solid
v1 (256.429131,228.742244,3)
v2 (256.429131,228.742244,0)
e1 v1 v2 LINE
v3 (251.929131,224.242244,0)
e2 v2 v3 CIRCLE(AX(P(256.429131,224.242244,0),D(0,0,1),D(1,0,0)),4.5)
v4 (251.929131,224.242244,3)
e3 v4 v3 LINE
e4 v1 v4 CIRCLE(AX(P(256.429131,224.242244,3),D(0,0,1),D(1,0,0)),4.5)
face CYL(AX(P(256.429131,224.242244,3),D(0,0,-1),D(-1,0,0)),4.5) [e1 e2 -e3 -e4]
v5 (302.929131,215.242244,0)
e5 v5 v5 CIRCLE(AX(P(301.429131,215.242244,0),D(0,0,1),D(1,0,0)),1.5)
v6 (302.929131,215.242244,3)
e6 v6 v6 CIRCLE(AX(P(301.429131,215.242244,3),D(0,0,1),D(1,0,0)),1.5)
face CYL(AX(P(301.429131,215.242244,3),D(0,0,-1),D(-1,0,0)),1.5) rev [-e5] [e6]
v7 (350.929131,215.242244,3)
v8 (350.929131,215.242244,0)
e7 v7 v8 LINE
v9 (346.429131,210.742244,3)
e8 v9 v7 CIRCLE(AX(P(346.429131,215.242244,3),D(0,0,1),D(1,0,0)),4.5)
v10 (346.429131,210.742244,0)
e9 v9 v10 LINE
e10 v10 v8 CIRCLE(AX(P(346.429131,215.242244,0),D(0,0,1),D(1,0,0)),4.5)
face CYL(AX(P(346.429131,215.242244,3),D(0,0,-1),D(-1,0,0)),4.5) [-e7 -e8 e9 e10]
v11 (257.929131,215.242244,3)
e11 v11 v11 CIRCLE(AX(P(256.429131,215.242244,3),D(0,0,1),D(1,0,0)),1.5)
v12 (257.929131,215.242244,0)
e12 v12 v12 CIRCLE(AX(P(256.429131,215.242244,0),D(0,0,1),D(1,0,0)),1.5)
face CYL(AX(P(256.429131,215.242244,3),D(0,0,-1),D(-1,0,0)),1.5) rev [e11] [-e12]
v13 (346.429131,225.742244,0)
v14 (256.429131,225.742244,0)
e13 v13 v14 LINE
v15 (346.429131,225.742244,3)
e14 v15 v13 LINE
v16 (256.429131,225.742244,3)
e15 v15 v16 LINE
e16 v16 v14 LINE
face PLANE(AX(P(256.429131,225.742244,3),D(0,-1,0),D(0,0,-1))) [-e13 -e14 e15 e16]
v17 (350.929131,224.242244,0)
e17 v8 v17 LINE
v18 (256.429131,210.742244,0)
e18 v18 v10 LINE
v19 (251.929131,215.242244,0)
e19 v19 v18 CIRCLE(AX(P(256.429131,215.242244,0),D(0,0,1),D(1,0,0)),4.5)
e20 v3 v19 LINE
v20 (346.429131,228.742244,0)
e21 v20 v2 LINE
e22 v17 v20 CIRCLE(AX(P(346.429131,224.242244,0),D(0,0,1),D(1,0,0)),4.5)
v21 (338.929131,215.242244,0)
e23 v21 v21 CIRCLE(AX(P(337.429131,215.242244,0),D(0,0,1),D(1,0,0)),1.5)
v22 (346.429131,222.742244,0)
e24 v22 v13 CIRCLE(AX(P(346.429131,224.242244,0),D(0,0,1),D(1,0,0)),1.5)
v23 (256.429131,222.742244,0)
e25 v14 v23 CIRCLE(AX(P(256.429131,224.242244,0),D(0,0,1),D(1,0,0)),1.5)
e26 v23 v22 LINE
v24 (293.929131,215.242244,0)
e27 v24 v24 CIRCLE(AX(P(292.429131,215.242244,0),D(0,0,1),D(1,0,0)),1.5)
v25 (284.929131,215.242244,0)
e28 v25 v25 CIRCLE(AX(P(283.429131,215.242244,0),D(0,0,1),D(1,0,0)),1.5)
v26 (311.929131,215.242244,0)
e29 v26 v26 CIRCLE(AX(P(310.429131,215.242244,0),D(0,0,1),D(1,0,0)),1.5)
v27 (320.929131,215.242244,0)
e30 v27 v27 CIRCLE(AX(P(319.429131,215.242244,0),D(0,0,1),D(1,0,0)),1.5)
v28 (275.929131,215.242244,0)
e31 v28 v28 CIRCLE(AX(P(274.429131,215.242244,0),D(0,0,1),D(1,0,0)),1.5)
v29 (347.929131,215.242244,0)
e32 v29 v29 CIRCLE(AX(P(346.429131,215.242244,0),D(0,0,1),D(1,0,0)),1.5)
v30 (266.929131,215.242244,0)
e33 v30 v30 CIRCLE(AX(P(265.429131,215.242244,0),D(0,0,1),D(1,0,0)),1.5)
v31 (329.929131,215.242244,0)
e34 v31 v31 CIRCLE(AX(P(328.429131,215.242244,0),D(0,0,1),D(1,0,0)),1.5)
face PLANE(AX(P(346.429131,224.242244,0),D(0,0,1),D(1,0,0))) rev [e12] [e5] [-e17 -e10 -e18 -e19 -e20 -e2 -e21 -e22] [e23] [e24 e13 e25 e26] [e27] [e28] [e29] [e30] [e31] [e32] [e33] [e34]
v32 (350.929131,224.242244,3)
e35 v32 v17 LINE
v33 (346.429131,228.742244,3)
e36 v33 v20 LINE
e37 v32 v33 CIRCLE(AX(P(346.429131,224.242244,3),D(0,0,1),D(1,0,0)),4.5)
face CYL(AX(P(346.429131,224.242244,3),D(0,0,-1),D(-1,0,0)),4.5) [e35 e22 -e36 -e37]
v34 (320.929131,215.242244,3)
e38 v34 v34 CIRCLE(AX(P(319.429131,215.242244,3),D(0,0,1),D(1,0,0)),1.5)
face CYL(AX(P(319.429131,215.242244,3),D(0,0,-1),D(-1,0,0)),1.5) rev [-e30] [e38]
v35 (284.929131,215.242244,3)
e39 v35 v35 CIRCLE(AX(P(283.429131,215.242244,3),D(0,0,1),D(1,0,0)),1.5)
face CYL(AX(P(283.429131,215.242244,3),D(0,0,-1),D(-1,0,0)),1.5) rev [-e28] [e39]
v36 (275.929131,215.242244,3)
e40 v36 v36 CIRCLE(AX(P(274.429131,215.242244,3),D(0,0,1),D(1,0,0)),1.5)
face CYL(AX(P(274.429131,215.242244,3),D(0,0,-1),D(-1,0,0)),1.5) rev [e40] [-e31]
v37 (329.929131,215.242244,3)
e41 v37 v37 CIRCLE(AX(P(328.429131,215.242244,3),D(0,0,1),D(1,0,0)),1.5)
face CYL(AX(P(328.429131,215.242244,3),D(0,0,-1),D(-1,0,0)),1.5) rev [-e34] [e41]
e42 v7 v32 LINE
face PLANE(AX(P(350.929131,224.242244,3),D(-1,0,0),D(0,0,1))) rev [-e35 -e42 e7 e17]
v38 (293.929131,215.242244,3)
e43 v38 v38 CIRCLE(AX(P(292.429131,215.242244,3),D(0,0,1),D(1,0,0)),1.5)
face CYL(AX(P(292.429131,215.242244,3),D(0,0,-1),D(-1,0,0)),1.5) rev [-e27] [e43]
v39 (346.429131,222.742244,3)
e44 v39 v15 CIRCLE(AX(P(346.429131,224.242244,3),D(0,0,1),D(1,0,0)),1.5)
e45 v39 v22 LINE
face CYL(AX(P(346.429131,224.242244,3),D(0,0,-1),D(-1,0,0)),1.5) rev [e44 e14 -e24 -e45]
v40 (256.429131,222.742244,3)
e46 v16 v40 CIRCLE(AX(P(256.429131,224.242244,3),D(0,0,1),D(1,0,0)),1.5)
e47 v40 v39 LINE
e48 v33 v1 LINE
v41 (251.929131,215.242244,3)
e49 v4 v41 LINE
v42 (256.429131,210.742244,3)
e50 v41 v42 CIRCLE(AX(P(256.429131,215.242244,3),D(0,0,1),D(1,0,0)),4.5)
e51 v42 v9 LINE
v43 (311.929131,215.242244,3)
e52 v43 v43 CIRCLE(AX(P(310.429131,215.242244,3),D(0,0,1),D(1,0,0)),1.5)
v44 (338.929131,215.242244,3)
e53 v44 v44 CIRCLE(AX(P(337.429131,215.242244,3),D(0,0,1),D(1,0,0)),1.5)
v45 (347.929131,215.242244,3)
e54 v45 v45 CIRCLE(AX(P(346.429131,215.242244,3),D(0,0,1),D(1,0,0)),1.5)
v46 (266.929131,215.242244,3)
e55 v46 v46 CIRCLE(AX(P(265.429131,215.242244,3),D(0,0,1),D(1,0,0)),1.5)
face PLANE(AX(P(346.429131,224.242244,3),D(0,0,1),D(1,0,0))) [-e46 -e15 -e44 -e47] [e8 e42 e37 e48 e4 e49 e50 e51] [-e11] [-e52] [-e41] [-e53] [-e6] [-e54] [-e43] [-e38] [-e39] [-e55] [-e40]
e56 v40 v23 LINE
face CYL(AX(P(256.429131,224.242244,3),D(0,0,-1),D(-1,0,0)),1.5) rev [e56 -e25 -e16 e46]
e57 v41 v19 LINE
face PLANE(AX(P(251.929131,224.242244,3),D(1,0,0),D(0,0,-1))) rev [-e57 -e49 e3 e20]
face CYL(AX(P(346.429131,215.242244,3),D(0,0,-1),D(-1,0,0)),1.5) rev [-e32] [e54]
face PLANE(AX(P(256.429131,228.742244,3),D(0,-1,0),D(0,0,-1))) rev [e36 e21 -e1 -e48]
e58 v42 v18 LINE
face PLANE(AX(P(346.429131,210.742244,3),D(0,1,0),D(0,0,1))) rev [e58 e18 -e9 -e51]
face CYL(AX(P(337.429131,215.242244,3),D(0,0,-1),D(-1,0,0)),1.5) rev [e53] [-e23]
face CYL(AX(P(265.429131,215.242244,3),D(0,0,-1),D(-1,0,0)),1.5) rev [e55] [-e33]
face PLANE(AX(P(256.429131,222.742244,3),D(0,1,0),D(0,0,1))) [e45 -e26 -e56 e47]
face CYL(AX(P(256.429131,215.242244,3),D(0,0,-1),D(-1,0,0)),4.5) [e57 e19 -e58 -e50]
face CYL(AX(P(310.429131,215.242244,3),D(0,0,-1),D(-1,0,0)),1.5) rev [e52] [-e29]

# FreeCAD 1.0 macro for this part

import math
import FreeCAD as App
import Part
import Sketcher

V = App.Vector
Q = App.Units.Quantity

doc = App.newDocument("Part")
body = doc.addObject("PartDesign::Body", "Body")

sketch1 = body.newObject("Sketcher::SketchObject", "Sketch")
sketch1.AttachmentSupport = (doc.getObject("XY_Plane"), [""])
sketch1.MapMode = "FlatFace"
sketch1.addGeometry([
    Part.LineSegment(V(346.4, 228.7, 0), V(256.4, 228.7, 0)),
    Part.ArcOfCircle(Part.Circle(V(256.4, 224.2, 0), V(0, 0, 1), 4.5), math.radians(90), math.radians(180)),
    Part.LineSegment(V(251.9, 224.2, 0), V(251.9, 215.2, 0)),
    Part.ArcOfCircle(Part.Circle(V(256.4, 215.2, 0), V(0, 0, 1), 4.5), math.radians(180), math.radians(270)),
    Part.LineSegment(V(256.4, 210.7, 0), V(346.4, 210.7, 0)),
    Part.ArcOfCircle(Part.Circle(V(346.4, 215.2, 0), V(0, 0, 1), 4.5), math.radians(-90), math.radians(0)),
    Part.LineSegment(V(350.9, 215.2, 0), V(350.9, 224.2, 0)),
    Part.ArcOfCircle(Part.Circle(V(346.4, 224.2, 0), V(0, 0, 1), 4.5), math.radians(0), math.radians(90)),
    Part.Circle(V(346.4, 215.2, 0), V(0, 0, 1), 1.5),
    Part.Circle(V(337.4, 215.2, 0), V(0, 0, 1), 1.5),
    Part.Circle(V(328.4, 215.2, 0), V(0, 0, 1), 1.5),
    Part.Circle(V(319.4, 215.2, 0), V(0, 0, 1), 1.5),
    Part.Circle(V(310.4, 215.2, 0), V(0, 0, 1), 1.5),
    Part.Circle(V(301.4, 215.2, 0), V(0, 0, 1), 1.5),
    Part.Circle(V(292.4, 215.2, 0), V(0, 0, 1), 1.5),
    Part.Circle(V(283.4, 215.2, 0), V(0, 0, 1), 1.5),
    Part.Circle(V(274.4, 215.2, 0), V(0, 0, 1), 1.5),
    Part.Circle(V(265.4, 215.2, 0), V(0, 0, 1), 1.5),
    Part.Circle(V(256.4, 215.2, 0), V(0, 0, 1), 1.5),
    Part.LineSegment(V(256.4, 225.7, 0), V(346.4, 225.7, 0)),
    Part.ArcOfCircle(Part.Circle(V(346.4, 224.2, 0), V(0, 0, 1), 1.5), math.radians(-90), math.radians(90)),
    Part.LineSegment(V(346.4, 222.7, 0), V(256.4, 222.7, 0)),
    Part.ArcOfCircle(Part.Circle(V(256.4, 224.2, 0), V(0, 0, 1), 1.5), math.radians(90), math.radians(270)),
], False)
sketch1.addConstraint([
    Sketcher.Constraint("Tangent", 0, 2, 1, 1),
    Sketcher.Constraint("Tangent", 1, 2, 2, 1),
    Sketcher.Constraint("Tangent", 2, 2, 3, 1),
    Sketcher.Constraint("Tangent", 3, 2, 4, 1),
    Sketcher.Constraint("Tangent", 4, 2, 5, 1),
    Sketcher.Constraint("Tangent", 5, 2, 6, 1),
    Sketcher.Constraint("Tangent", 6, 2, 7, 1),
    Sketcher.Constraint("Tangent", 7, 2, 0, 1),
    Sketcher.Constraint("Tangent", 19, 2, 20, 2),
    Sketcher.Constraint("Tangent", 20, 1, 21, 1),
    Sketcher.Constraint("Tangent", 21, 2, 22, 2),
    Sketcher.Constraint("Tangent", 22, 1, 19, 1),
    Sketcher.Constraint("Horizontal", 0),
    Sketcher.Constraint("Vertical", 2),
    Sketcher.Constraint("Horizontal", 4),
    Sketcher.Constraint("Vertical", 6),
    Sketcher.Constraint("Horizontal", 19),
    Sketcher.Constraint("Horizontal", 21),
    Sketcher.Constraint("Coincident", 8, 3, 5, 3),
    Sketcher.Constraint("Coincident", 18, 3, 3, 3),
    Sketcher.Constraint("Coincident", 20, 3, 7, 3),
    Sketcher.Constraint("Coincident", 22, 3, 1, 3),
    Sketcher.Constraint("Equal", 1, 3),
    Sketcher.Constraint("Equal", 3, 5),
    Sketcher.Constraint("Equal", 8, 9),
    Sketcher.Constraint("Equal", 9, 10),
    Sketcher.Constraint("Equal", 10, 11),
    Sketcher.Constraint("Equal", 11, 12),
    Sketcher.Constraint("Equal", 12, 13),
    Sketcher.Constraint("Equal", 13, 14),
    Sketcher.Constraint("Equal", 14, 15),
    Sketcher.Constraint("Equal", 15, 16),
    Sketcher.Constraint("Equal", 16, 17),
    Sketcher.Constraint("Equal", 17, 18),
    Sketcher.Constraint("Equal", 18, 20),
    Sketcher.Constraint("Horizontal", 8, 3, 9, 3),
    Sketcher.Constraint("Horizontal", 9, 3, 10, 3),
    Sketcher.Constraint("Horizontal", 10, 3, 11, 3),
    Sketcher.Constraint("Horizontal", 11, 3, 12, 3),
    Sketcher.Constraint("Horizontal", 12, 3, 13, 3),
    Sketcher.Constraint("Horizontal", 13, 3, 14, 3),
    Sketcher.Constraint("Horizontal", 14, 3, 15, 3),
    Sketcher.Constraint("Horizontal", 15, 3, 16, 3),
    Sketcher.Constraint("Horizontal", 16, 3, 17, 3),
    Sketcher.Constraint("Diameter", 8, Q("3 mm")),
    Sketcher.Constraint("Radius", 1, Q("4.5 mm")),
    Sketcher.Constraint("DistanceX", 0, 2, 0, 1, Q("90 mm")),
    Sketcher.Constraint("DistanceY", 2, 2, 2, 1, Q("9 mm")),
    Sketcher.Constraint("DistanceX", 9, 3, 5, 3, Q("9 mm")),
    Sketcher.Constraint("DistanceX", 10, 3, 9, 3, Q("9 mm")),
    Sketcher.Constraint("DistanceX", 11, 3, 10, 3, Q("9 mm")),
    Sketcher.Constraint("DistanceX", 12, 3, 11, 3, Q("9 mm")),
    Sketcher.Constraint("DistanceX", 13, 3, 12, 3, Q("9 mm")),
    Sketcher.Constraint("DistanceX", 14, 3, 13, 3, Q("9 mm")),
    Sketcher.Constraint("DistanceX", 15, 3, 14, 3, Q("9 mm")),
    Sketcher.Constraint("DistanceX", 16, 3, 15, 3, Q("9 mm")),
    Sketcher.Constraint("DistanceX", 17, 3, 16, 3, Q("9 mm")),
    Sketcher.Constraint("DistanceX", -1, 1, 1, 3, Q("256.429131 mm")),
    Sketcher.Constraint("DistanceY", -1, 1, 1, 3, Q("224.242244 mm")),
])
pad1 = body.newObject("PartDesign::Pad", "Pad")
pad1.Profile = sketch1
pad1.Length = 3

doc.recompute()
